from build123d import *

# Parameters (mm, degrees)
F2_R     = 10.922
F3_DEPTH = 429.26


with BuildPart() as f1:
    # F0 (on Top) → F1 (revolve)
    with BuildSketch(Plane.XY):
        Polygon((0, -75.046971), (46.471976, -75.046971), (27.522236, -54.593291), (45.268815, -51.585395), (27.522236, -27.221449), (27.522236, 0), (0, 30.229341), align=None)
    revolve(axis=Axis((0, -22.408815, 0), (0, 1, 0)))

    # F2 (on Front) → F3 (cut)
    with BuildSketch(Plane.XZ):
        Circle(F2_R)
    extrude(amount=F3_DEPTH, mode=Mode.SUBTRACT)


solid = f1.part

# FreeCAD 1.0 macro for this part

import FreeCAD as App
import Part
import Sketcher

V = App.Vector
Q = App.Units.Quantity

doc = App.newDocument("Part")
body = doc.addObject("PartDesign::Body", "Body")

sketch1 = body.newObject("Sketcher::SketchObject", "Sketch")
sketch1.AttachmentSupport = (doc.getObject("XY_Plane"), [""])
sketch1.MapMode = "FlatFace"
sketch1.addGeometry([
    Part.LineSegment(V(0, -75, 0), V(46, -75, 0)),
    Part.LineSegment(V(46, -75, 0), V(28, -55, 0)),
    Part.LineSegment(V(28, -55, 0), V(45, -52, 0)),
    Part.LineSegment(V(45, -52, 0), V(28, -27, 0)),
    Part.LineSegment(V(28, -27, 0), V(28, 0, 0)),
    Part.LineSegment(V(28, 0, 0), V(0, 30, 0)),
    Part.LineSegment(V(0, 30, 0), V(0, -75, 0)),
], False)
sketch1.addConstraint([
    Sketcher.Constraint("Coincident", 0, 2, 1, 1),
    Sketcher.Constraint("Coincident", 1, 2, 2, 1),
    Sketcher.Constraint("Coincident", 2, 2, 3, 1),
    Sketcher.Constraint("Coincident", 3, 2, 4, 1),
    Sketcher.Constraint("Coincident", 4, 2, 5, 1),
    Sketcher.Constraint("Coincident", 5, 2, 6, 1),
    Sketcher.Constraint("Coincident", 6, 2, 0, 1),
    Sketcher.Constraint("Horizontal", 0),
    Sketcher.Constraint("Vertical", 4),
    Sketcher.Constraint("Vertical", 6),
    Sketcher.Constraint("PointOnObject", 4, 2, -1),
    Sketcher.Constraint("PointOnObject", 5, 2, -2),
    Sketcher.Constraint("Vertical", 1, 2, 3, 2),
    Sketcher.Constraint("DistanceY", 4, 1, 4, 2, Q("27.221449 mm")),
    Sketcher.Constraint("Distance", 2, Q("17.999681 mm")),
    Sketcher.Constraint("Distance", 5, Q("40.881371 mm")),
    Sketcher.Constraint("DistanceX", 0, 1, 0, 2, Q("46.471976 mm")),
    Sketcher.Constraint("DistanceY", 6, 2, 6, 1, Q("105.276312 mm")),
    Sketcher.Constraint("DistanceY", 0, 2, -1, 1, Q("75.046971 mm")),
    Sketcher.Constraint("DistanceY", 1, 2, -1, 1, Q("54.593291 mm")),
    Sketcher.Constraint("DistanceX", 1, 2, 2, 2, Q("17.746579 mm")),
])
revolution = body.newObject("PartDesign::Revolution", "Revolution")
revolution.Profile = sketch1
revolution.ReferenceAxis = (sketch1, ["V_Axis"])
revolution.Angle = 360

sketch2 = body.newObject("Sketcher::SketchObject", "Sketch001")
sketch2.AttachmentSupport = (doc.getObject("XZ_Plane"), [""])
sketch2.MapMode = "FlatFace"
sketch2.addGeometry(Part.Circle(V(0, 0, 0), V(0, 0, 1), 11), False)
sketch2.addConstraint([
    Sketcher.Constraint("Coincident", 0, 3, -1, 1),
    Sketcher.Constraint("Diameter", 0, Q("0.86 in")),
])
pocket1 = body.newObject("PartDesign::Pocket", "Pocket")
pocket1.Profile = sketch2
pocket1.Length = Q("16.9 in")
pocket1.Reversed = True

doc.recompute()
